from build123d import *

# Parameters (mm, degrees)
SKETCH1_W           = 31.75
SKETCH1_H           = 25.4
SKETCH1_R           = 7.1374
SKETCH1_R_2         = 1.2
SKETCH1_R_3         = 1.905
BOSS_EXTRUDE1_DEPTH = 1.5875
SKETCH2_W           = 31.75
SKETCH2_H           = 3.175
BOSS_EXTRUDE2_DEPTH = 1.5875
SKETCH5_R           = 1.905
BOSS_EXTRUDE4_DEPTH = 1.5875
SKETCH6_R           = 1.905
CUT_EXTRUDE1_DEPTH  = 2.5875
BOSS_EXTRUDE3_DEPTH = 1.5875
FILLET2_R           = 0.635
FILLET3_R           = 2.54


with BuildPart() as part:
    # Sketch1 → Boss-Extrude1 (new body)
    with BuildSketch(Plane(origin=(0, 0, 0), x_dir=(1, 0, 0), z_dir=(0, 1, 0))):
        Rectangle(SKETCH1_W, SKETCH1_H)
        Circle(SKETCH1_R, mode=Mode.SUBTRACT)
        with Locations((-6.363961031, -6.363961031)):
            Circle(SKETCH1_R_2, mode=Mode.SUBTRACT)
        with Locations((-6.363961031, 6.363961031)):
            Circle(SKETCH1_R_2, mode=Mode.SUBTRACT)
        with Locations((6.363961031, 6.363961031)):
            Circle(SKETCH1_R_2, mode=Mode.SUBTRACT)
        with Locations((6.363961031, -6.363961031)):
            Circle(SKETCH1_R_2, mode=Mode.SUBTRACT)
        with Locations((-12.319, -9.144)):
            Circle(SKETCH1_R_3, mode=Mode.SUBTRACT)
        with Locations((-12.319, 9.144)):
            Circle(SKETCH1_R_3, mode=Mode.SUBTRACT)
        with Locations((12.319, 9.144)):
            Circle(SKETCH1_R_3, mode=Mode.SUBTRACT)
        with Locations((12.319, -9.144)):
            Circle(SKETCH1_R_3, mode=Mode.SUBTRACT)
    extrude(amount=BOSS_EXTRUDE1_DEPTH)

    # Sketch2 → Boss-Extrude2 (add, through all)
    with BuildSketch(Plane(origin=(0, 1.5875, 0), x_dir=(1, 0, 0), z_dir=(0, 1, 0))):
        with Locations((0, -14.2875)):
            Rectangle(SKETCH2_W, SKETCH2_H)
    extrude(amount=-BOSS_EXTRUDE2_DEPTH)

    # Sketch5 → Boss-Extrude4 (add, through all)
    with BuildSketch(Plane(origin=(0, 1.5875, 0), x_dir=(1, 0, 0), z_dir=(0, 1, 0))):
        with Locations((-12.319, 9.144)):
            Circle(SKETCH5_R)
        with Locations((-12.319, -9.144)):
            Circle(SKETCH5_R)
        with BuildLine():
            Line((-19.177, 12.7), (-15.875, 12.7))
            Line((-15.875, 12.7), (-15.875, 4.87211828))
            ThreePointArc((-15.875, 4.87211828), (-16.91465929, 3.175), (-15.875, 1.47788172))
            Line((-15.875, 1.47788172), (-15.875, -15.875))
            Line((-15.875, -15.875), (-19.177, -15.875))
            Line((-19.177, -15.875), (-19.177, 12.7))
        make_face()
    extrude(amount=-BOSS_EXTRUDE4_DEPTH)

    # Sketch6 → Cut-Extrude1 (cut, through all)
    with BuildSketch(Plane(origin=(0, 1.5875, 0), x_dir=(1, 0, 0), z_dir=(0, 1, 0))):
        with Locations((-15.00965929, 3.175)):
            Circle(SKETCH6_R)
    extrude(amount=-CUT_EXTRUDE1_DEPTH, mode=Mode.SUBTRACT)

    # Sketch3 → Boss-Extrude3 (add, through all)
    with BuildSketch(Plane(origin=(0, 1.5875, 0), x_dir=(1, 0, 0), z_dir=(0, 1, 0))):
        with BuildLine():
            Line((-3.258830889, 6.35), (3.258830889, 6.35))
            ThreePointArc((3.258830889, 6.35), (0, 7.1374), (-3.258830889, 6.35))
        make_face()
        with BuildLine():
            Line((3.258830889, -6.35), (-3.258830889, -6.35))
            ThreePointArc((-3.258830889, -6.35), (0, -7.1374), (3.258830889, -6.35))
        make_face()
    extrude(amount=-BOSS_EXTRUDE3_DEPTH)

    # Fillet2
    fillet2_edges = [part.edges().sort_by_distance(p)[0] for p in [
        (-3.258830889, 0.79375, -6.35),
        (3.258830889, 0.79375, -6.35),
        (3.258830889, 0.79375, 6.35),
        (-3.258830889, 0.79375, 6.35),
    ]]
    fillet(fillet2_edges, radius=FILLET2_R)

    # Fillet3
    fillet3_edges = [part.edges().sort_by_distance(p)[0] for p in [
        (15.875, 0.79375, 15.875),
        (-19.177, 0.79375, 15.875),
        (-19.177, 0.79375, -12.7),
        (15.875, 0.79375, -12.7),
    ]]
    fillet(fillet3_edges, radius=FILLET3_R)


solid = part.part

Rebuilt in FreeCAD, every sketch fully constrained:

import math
import FreeCAD as App
import Part
import Sketcher
Q = App.Units.Quantity


def edges_at(feature, points):
    """Names of the edges that pass closest to the given points."""
    edges = feature.Shape.Edges
    near = lambda p: min(range(len(edges)), key=lambda i: edges[i].distToShape(Part.Vertex(*p))[0])
    return sorted({f"Edge{near(p) + 1}" for p in points})


def add_polygon(sketch, points):
    """Adds a closed chain of lines whose ends are joined by coincident constraints."""
    first, n = sketch.GeometryCount, len(points)
    for a, b in zip(points, points[1:] + points[:1]):
        sketch.addGeometry(Part.LineSegment(App.Vector(*a, 0), App.Vector(*b, 0)), False)
    for i in range(n):
        sketch.addConstraint(Sketcher.Constraint("Coincident", first + i, 2, first + (i + 1) % n, 1))

doc = App.newDocument("Part")
params = doc.addObject("Spreadsheet::Sheet", "Params")
for row, (alias, value) in enumerate([
    ("sketch1_diameter", "0.15 in"),
    ("sketch1_height", "1 in"),
    ("sketch1_diameter2", "0.562 in"),
    ("sketch1_width", "1.25 in"),
    ("pad1_length", "0.0625 in"),
    ("sketch2_width", "1.25 in"),
    ("sketch2_height", "0.125 in"),
    ("pad2_length", "0.0625 in"),
    ("sketch3_diameter", "0.15 in"),
    ("sketch3_width", "0.13 in"),
    ("sketch3_height", "1.125 in"),
    ("pad3_length", "0.0625 in"),
    ("sketch4_diameter", "0.15 in"),
    ("sketch5_radius", "0.281 in"),
    ("pad4_length", "0.0625 in"),
    ("fillet_radius", "0.025 in"),
    ("fillet2_radius", "0.1 in"),
], start=1):
    params.set(f"A{row}", alias)
    params.set(f"B{row}", "=" + value)
    params.setAlias(f"B{row}", alias)

body = doc.addObject("PartDesign::Body", "Body")

sketch1 = body.newObject("Sketcher::SketchObject", "Sketch")
sketch1.AttachmentSupport = (doc.getObject("XZ_Plane"), [""])
sketch1.MapMode = "FlatFace"
add_polygon(sketch1, [(-15.875, -12.7), (-15.875, 12.7), (15.875, 12.7), (15.875, -12.7)])
sketch1.addGeometry(Part.Circle(App.Vector(-12.319, 9.144, 0), App.Vector(0, 0, 1), 1.905), False)
sketch1.addGeometry(Part.Circle(App.Vector(-6.363961, 6.363961, 0), App.Vector(0, 0, 1), 1.2), False)
sketch1.addGeometry(Part.Circle(App.Vector(6.363961, 6.363961, 0), App.Vector(0, 0, 1), 1.2), False)
sketch1.addGeometry(Part.Circle(App.Vector(12.319, 9.144, 0), App.Vector(0, 0, 1), 1.905), False)
sketch1.addGeometry(Part.Circle(App.Vector(0, 0, 0), App.Vector(0, 0, 1), 7.1374), False)
sketch1.addGeometry(Part.Circle(App.Vector(-12.319, -9.144, 0), App.Vector(0, 0, 1), 1.905), False)
sketch1.addGeometry(Part.Circle(App.Vector(-6.363961, -6.363961, 0), App.Vector(0, 0, 1), 1.2), False)
sketch1.addGeometry(Part.Circle(App.Vector(6.363961, -6.363961, 0), App.Vector(0, 0, 1), 1.2), False)
sketch1.addGeometry(Part.Circle(App.Vector(12.319, -9.144, 0), App.Vector(0, 0, 1), 1.905), False)
sketch1.addConstraint([
    Sketcher.Constraint("Vertical", 0),
    Sketcher.Constraint("Horizontal", 1),
    Sketcher.Constraint("Vertical", 2),
    Sketcher.Constraint("Horizontal", 3),
    Sketcher.Constraint("Coincident", 8, 3, -1, 1),
    Sketcher.Constraint("Equal", 5, 6),
    Sketcher.Constraint("Equal", 4, 7),
    Sketcher.Constraint("Equal", 7, 9),
    Sketcher.Constraint("Equal", 6, 10),
    Sketcher.Constraint("Equal", 10, 11),
    Sketcher.Constraint("Equal", 9, 12),
    Sketcher.Constraint("Symmetric", 7, 3, 9, 3, -1, 1),
    Sketcher.Constraint("Symmetric", 6, 3, 10, 3, -1, 1),
    Sketcher.Constraint("Symmetric", 5, 3, 11, 3, -1, 1),
    Sketcher.Constraint("Symmetric", 4, 3, 12, 3, -1, 1),
    Sketcher.Constraint("Symmetric", 0, 2, 2, 2, -1, 1),
    Sketcher.Constraint("Symmetric", 5, 3, 6, 3, -2),
    Sketcher.Constraint("Symmetric", 4, 3, 7, 3, -2),
    Sketcher.Constraint("Diameter", 4, Q("0.15 in")),
    Sketcher.Constraint("DistanceY", 0, 1, 0, 2, Q("1 in")),
    Sketcher.Constraint("Diameter", 8, Q("0.562 in")),
    Sketcher.Constraint("DistanceX", 1, 1, 1, 2, Q("1.25 in")),
    Sketcher.Constraint("Diameter", 5, Q("2.4 mm")),
    Sketcher.Constraint("DistanceY", -1, 1, 4, 3, Q("0.36 in")),
    Sketcher.Constraint("DistanceX", 4, 3, 7, 3, Q("0.97 in")),
    Sketcher.Constraint("DistanceX", 5, 3, -1, 1, Q("6.363961 mm")),
    Sketcher.Constraint("DistanceY", -1, 1, 5, 3, Q("6.363961 mm")),
])
sketch1.setExpression("Constraints[22]", "Params.sketch1_diameter")
sketch1.setExpression("Constraints[23]", "Params.sketch1_height")
sketch1.setExpression("Constraints[24]", "Params.sketch1_diameter2")
sketch1.setExpression("Constraints[25]", "Params.sketch1_width")
pad1 = body.newObject("PartDesign::Pad", "Pad")
pad1.Profile = sketch1
pad1.setExpression("Length", "Params.pad1_length")
pad1.Reversed = True

sketch2 = body.newObject("Sketcher::SketchObject", "Sketch001")
sketch2.AttachmentSupport = (doc.getObject("XZ_Plane"), [""])
sketch2.MapMode = "FlatFace"
sketch2.AttachmentOffset = App.Placement(App.Vector(0, 0, -0.0625 * 25.4), App.Rotation())
add_polygon(sketch2, [(-15.875, 12.7), (-15.875, 15.875), (15.875, 15.875), (15.875, 12.7)])
sketch2.addConstraint([
    Sketcher.Constraint("Vertical", 0),
    Sketcher.Constraint("Horizontal", 1),
    Sketcher.Constraint("Vertical", 2),
    Sketcher.Constraint("Horizontal", 3),
    Sketcher.Constraint("DistanceX", 1, 1, 1, 2, Q("1.25 in")),
    Sketcher.Constraint("DistanceY", -1, 1, 2, 2, Q("0.5 in")),
    Sketcher.Constraint("DistanceY", 0, 1, 0, 2, Q("0.125 in")),
    Sketcher.Constraint("DistanceX", 0, 2, -1, 1, Q("0.625 in")),
])
sketch2.setExpression("Constraints[8]", "Params.sketch2_width")
sketch2.setExpression("Constraints[10]", "Params.sketch2_height")
pad2 = body.newObject("PartDesign::Pad", "Pad001")
pad2.Profile = sketch2
pad2.setExpression("Length", "Params.pad2_length")

sketch3 = body.newObject("Sketcher::SketchObject", "Sketch002")
sketch3.AttachmentSupport = (doc.getObject("XZ_Plane"), [""])
sketch3.MapMode = "FlatFace"
sketch3.AttachmentOffset = App.Placement(App.Vector(0, 0, -0.0625 * 25.4), App.Rotation())
sketch3.addGeometry([
    Part.Circle(App.Vector(-12.319, -9.144, 0), App.Vector(0, 0, 1), 1.905),
    Part.Circle(App.Vector(-12.319, 9.144, 0), App.Vector(0, 0, 1), 1.905),
    Part.LineSegment(App.Vector(-15.875, -12.7, 0), App.Vector(-19.177, -12.7, 0)),
    Part.LineSegment(App.Vector(-19.177, -12.7, 0), App.Vector(-19.177, 15.875, 0)),
    Part.LineSegment(App.Vector(-19.177, 15.875, 0), App.Vector(-15.875, 15.875, 0)),
    Part.LineSegment(App.Vector(-15.875, 15.875, 0), App.Vector(-15.875, -1.477882, 0)),
    Part.ArcOfCircle(Part.Circle(App.Vector(-15.009659, -3.175, 0), App.Vector(0, 0, 1), 1.905), math.radians(117.016501), math.radians(242.983499)),
    Part.LineSegment(App.Vector(-15.875, -4.872118, 0), App.Vector(-15.875, -12.7, 0)),
], False)
sketch3.addConstraint([
    Sketcher.Constraint("Coincident", 2, 2, 3, 1),
    Sketcher.Constraint("Coincident", 3, 2, 4, 1),
    Sketcher.Constraint("Coincident", 4, 2, 5, 1),
    Sketcher.Constraint("Coincident", 5, 2, 6, 1),
    Sketcher.Constraint("Coincident", 6, 2, 7, 1),
    Sketcher.Constraint("Coincident", 7, 2, 2, 1),
    Sketcher.Constraint("Horizontal", 2),
    Sketcher.Constraint("Vertical", 3),
    Sketcher.Constraint("Horizontal", 4),
    Sketcher.Constraint("Vertical", 5),
    Sketcher.Constraint("Vertical", 7),
    Sketcher.Constraint("Equal", 0, 1),
    Sketcher.Constraint("Equal", 1, 6),
    Sketcher.Constraint("Symmetric", 0, 3, 1, 3, -1),
    Sketcher.Constraint("Vertical", 5, 2, 6, 2),
    Sketcher.Constraint("Diameter", 0, Q("0.15 in")),
    Sketcher.Constraint("DistanceX", 2, 2, 2, 1, Q("0.13 in")),
    Sketcher.Constraint("DistanceY", 2, 2, -1, 1, Q("0.5 in")),
    Sketcher.Constraint("DistanceY", 3, 1, 3, 2, Q("1.125 in")),
    Sketcher.Constraint("DistanceY", 0, 3, -1, 1, Q("0.36 in")),
    Sketcher.Constraint("DistanceX", 2, 2, 0, 3, Q("0.27 in")),
    Sketcher.Constraint("DistanceY", 6, 3, 3, 2, Q("0.75 in")),
    Sketcher.Constraint("DistanceX", 0, 3, -1, 1, Q("0.485 in")),
    Sketcher.Constraint("DistanceY", 5, 2, 5, 1, Q("17.352882 mm")),
])
sketch3.setExpression("Constraints[15]", "Params.sketch3_diameter")
sketch3.setExpression("Constraints[16]", "Params.sketch3_width")
sketch3.setExpression("Constraints[18]", "Params.sketch3_height")
pad3 = body.newObject("PartDesign::Pad", "Pad002")
pad3.Profile = sketch3
pad3.setExpression("Length", "Params.pad3_length")

sketch4 = body.newObject("Sketcher::SketchObject", "Sketch003")
sketch4.AttachmentSupport = (doc.getObject("XZ_Plane"), [""])
sketch4.MapMode = "FlatFace"
sketch4.AttachmentOffset = App.Placement(App.Vector(0, 0, -0.0625 * 25.4), App.Rotation())
sketch4.addGeometry(Part.Circle(App.Vector(-15.009659, -3.175, 0), App.Vector(0, 0, 1), 1.905), False)
sketch4.addConstraint([
    Sketcher.Constraint("Diameter", 0, Q("0.15 in")),
    Sketcher.Constraint("DistanceY", 0, 3, -1, 1, Q("0.125 in")),
    Sketcher.Constraint("DistanceX", 0, 3, -1, 1, Q("15.009659 mm")),
])
sketch4.setExpression("Constraints[0]", "Params.sketch4_diameter")
pocket1 = body.newObject("PartDesign::Pocket", "Pocket")
pocket1.Profile = sketch4
pocket1.Type = "ThroughAll"
pocket1.Reversed = True

sketch5 = body.newObject("Sketcher::SketchObject", "Sketch004")
sketch5.AttachmentSupport = (doc.getObject("XZ_Plane"), [""])
sketch5.MapMode = "FlatFace"
sketch5.AttachmentOffset = App.Placement(App.Vector(0, 0, -0.0625 * 25.4), App.Rotation())
sketch5.addGeometry([
    Part.LineSegment(App.Vector(-3.258831, -6.35, 0), App.Vector(3.258831, -6.35, 0)),
    Part.ArcOfCircle(Part.Circle(App.Vector(0, 0, 0), App.Vector(0, 0, 1), 7.1374), math.radians(-117.166972), math.radians(-62.833028)),
    Part.LineSegment(App.Vector(3.258831, 6.35, 0), App.Vector(-3.258831, 6.35, 0)),
    Part.ArcOfCircle(Part.Circle(App.Vector(0, 0, 0), App.Vector(0, 0, 1), 7.1374), math.radians(62.833028), math.radians(117.166972)),
], False)
sketch5.addConstraint([
    Sketcher.Constraint("Coincident", 0, 1, 1, 1),
    Sketcher.Constraint("Coincident", 1, 2, 0, 2),
    Sketcher.Constraint("Coincident", 2, 1, 3, 1),
    Sketcher.Constraint("Coincident", 3, 2, 2, 2),
    Sketcher.Constraint("Horizontal", 0),
    Sketcher.Constraint("Horizontal", 2),
    Sketcher.Constraint("Coincident", 1, 3, -1, 1),
    Sketcher.Constraint("Coincident", 3, 3, -1, 1),
    Sketcher.Constraint("Equal", 1, 3),
    Sketcher.Constraint("Vertical", 1, 2, 2, 1),
    Sketcher.Constraint("Radius", 1, Q("0.281 in")),
    Sketcher.Constraint("DistanceY", 1, 2, 2, 1, Q("0.5 in")),
])
sketch5.setExpression("Constraints[10]", "Params.sketch5_radius")
pad4 = body.newObject("PartDesign::Pad", "Pad003")
pad4.Profile = sketch5
pad4.setExpression("Length", "Params.pad4_length")
doc.recompute()

fillet = body.newObject("PartDesign::Fillet", "Fillet")
fillet.Base = (pad4, edges_at(pad4, [
    (-3.259, 0.794, -6.35),
    (3.259, 0.794, -6.35),
    (3.259, 0.794, 6.35),
    (-3.259, 0.794, 6.35),
]))
fillet.setExpression("Radius", "Params.fillet_radius")
doc.recompute()

fillet2 = body.newObject("PartDesign::Fillet", "Fillet001")
fillet2.Base = (fillet, edges_at(fillet, [
    (15.875, 0.794, 15.875),
    (-19.177, 0.794, 15.875),
    (-19.177, 0.794, -12.7),
    (15.875, 0.794, -12.7),
]))
fillet2.setExpression("Radius", "Params.fillet2_radius")

doc.recompute()
